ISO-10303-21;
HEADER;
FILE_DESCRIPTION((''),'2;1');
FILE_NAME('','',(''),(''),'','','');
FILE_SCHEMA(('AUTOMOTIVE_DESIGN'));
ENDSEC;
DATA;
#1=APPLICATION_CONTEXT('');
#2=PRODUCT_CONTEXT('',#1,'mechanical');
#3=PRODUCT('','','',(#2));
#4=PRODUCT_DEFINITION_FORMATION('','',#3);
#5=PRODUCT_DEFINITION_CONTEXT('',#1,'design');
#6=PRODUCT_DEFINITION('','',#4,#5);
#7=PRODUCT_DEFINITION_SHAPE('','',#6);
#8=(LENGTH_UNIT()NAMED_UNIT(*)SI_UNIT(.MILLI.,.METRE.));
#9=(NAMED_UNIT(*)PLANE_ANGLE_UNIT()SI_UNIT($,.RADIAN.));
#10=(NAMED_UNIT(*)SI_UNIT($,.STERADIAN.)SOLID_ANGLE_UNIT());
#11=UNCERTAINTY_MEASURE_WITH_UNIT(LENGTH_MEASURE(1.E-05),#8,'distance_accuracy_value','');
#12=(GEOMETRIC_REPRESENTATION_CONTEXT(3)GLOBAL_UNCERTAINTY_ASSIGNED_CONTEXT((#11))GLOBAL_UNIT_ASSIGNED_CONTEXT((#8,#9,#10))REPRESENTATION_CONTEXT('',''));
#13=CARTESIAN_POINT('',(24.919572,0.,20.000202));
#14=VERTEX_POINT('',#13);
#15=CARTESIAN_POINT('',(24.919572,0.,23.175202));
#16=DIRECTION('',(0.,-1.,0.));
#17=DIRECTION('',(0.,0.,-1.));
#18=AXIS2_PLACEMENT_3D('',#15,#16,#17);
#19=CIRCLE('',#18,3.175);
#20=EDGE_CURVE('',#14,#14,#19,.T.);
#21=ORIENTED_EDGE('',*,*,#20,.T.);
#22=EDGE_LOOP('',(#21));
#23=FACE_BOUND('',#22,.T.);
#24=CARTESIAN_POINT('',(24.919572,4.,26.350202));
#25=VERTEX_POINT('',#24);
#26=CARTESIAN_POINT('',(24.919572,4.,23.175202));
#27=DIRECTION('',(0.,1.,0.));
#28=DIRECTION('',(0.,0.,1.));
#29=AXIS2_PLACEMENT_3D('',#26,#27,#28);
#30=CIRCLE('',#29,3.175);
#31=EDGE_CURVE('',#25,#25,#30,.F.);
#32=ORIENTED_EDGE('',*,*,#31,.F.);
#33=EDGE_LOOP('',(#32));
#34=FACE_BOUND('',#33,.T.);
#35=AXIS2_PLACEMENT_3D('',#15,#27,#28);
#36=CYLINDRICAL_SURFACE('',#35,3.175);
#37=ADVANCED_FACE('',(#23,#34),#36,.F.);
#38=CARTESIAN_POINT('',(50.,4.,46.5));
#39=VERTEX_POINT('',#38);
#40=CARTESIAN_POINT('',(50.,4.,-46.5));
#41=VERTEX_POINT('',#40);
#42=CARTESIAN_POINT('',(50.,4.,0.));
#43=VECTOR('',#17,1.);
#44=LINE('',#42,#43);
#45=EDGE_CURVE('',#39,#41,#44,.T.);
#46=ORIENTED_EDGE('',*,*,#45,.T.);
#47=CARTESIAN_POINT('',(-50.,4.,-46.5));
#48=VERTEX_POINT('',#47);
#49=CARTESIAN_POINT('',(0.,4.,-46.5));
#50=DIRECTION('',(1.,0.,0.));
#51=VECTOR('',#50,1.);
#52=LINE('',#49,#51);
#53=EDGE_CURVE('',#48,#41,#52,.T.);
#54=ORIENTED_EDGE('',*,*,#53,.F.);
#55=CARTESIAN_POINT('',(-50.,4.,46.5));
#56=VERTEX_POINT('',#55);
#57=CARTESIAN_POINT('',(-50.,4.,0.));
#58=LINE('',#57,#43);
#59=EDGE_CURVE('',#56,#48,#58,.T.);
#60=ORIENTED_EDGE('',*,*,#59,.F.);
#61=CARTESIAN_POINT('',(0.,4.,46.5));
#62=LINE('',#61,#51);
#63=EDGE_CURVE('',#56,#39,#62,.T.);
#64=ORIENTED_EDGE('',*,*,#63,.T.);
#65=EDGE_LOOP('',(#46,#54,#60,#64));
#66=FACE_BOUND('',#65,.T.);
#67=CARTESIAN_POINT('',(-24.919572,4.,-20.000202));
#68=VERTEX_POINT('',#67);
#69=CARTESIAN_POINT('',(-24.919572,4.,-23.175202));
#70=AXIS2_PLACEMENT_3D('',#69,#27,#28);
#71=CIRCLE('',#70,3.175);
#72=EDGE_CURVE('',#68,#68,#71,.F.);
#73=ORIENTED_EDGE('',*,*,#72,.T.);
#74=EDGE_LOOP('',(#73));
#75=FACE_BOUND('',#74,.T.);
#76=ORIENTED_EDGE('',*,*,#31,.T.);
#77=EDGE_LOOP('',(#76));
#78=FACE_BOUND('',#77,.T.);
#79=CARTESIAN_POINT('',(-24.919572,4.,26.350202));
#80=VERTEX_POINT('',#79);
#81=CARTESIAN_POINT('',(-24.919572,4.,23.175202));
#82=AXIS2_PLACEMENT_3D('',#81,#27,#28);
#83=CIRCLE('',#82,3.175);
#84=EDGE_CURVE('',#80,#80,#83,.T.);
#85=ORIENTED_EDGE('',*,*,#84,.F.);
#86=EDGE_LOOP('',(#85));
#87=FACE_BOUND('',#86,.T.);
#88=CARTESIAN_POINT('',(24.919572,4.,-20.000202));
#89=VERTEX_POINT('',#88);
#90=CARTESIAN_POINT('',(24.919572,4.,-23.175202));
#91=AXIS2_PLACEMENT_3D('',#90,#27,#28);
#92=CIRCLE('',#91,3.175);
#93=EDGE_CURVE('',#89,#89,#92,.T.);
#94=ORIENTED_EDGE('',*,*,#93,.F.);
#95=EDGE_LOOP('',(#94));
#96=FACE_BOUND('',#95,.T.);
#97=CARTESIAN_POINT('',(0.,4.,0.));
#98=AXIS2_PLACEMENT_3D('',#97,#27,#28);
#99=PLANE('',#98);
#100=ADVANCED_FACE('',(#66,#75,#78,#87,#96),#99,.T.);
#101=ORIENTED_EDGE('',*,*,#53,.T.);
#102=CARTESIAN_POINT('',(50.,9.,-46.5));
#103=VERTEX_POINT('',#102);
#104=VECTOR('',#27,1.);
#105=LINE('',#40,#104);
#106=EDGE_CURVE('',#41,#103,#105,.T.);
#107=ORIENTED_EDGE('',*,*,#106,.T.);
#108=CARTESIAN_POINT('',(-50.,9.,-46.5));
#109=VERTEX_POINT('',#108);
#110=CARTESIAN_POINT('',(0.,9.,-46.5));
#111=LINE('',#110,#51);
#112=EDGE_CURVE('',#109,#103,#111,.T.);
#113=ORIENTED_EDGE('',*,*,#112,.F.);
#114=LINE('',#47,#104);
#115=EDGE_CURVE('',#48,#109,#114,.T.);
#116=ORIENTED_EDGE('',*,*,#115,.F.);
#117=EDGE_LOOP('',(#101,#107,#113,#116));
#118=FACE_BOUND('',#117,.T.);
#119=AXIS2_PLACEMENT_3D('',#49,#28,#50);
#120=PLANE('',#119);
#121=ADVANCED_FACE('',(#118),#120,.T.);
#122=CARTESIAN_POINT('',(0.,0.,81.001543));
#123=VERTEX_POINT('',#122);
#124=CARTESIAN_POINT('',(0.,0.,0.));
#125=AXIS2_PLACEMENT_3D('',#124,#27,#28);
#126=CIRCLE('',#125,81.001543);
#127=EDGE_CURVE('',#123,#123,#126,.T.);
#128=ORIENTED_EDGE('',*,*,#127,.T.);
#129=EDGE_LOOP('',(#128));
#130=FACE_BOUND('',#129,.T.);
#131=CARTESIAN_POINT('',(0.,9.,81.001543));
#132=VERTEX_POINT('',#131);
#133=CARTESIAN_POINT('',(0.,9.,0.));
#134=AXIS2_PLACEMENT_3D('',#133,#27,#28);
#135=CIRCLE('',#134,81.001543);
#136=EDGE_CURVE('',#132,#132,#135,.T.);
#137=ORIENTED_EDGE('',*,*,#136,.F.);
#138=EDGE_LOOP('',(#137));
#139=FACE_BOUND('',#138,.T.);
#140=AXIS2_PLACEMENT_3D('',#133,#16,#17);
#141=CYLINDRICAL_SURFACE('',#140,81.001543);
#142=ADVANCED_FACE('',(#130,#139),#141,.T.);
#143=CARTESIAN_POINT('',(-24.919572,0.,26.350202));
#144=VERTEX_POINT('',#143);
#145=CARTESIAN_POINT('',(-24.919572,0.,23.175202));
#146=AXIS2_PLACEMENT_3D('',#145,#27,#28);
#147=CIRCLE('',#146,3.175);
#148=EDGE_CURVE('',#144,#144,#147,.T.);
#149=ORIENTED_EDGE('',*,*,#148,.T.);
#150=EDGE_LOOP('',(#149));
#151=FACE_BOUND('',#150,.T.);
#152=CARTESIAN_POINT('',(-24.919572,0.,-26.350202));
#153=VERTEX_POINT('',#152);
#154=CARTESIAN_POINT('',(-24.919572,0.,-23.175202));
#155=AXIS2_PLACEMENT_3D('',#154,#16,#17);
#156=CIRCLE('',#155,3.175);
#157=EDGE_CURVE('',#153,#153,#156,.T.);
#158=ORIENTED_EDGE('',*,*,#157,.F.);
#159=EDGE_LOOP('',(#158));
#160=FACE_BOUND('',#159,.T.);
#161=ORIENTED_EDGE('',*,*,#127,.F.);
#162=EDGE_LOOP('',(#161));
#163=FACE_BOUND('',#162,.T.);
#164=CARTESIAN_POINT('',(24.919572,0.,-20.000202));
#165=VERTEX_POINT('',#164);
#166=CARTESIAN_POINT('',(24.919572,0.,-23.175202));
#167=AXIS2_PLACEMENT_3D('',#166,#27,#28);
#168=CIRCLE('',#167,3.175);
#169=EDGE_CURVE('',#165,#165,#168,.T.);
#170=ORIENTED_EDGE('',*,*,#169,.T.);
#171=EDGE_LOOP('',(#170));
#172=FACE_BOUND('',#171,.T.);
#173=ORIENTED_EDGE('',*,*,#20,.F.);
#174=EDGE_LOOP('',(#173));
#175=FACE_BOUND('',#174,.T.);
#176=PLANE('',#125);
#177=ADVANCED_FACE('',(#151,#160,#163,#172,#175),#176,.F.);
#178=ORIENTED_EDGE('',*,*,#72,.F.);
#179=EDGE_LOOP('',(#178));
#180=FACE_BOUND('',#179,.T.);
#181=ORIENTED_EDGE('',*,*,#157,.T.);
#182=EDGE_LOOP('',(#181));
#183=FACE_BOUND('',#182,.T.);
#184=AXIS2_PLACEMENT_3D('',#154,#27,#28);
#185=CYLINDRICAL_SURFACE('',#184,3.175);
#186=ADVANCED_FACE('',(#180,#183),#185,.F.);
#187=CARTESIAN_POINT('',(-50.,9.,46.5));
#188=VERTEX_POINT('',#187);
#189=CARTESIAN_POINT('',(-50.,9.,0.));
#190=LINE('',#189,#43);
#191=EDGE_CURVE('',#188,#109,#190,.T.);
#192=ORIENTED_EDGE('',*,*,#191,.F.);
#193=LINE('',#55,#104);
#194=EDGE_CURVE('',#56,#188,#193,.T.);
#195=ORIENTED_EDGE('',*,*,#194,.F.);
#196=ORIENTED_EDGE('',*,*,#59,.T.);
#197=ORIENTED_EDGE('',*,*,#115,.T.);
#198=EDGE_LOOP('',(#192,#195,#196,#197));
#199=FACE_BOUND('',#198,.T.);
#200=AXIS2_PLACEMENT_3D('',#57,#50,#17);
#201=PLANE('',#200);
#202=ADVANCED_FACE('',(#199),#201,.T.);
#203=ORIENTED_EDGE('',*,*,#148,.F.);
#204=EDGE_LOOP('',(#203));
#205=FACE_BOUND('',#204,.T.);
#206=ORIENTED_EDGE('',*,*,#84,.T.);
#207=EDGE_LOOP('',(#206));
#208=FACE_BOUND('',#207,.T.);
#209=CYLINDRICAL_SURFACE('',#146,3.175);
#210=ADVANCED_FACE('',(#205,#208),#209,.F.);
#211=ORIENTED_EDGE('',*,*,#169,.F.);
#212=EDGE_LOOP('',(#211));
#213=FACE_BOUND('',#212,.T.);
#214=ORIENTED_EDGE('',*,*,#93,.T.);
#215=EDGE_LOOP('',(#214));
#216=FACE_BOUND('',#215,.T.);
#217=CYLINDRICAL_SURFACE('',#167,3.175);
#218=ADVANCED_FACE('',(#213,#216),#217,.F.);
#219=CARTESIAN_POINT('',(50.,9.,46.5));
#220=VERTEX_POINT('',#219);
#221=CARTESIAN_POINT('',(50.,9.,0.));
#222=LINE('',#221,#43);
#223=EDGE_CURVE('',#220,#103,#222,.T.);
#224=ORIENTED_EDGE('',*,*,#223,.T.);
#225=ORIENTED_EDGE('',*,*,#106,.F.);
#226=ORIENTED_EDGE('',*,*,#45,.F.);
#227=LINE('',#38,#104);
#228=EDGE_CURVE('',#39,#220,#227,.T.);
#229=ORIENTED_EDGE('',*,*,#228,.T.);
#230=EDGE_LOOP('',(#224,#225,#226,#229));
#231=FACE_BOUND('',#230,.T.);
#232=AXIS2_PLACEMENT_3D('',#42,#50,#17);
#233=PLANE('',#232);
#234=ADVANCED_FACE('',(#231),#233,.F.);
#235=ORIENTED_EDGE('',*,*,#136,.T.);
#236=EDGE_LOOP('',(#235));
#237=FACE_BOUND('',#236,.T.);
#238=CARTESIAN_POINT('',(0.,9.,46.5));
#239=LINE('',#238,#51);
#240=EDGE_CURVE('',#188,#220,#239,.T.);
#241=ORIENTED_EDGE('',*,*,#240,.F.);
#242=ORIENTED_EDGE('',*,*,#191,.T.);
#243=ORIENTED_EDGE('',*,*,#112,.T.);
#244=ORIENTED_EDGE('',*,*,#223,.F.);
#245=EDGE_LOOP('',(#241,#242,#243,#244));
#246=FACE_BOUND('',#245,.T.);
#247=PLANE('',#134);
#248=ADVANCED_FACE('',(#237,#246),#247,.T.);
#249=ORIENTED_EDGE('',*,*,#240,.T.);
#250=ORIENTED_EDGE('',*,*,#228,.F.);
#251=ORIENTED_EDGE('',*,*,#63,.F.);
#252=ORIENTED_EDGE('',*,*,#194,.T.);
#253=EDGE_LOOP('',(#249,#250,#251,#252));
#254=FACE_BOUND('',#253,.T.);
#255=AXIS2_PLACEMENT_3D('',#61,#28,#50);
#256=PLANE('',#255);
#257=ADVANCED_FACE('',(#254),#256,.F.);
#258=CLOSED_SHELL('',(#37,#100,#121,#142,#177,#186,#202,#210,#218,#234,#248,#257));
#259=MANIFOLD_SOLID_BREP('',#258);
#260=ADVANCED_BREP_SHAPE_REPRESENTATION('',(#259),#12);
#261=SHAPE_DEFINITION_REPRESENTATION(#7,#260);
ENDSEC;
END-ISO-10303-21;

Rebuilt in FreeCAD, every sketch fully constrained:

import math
import FreeCAD as App
import Part
import Sketcher


def add_polygon(sketch, points):
    """Adds a closed chain of lines whose ends are joined by coincident constraints."""
    first, n = sketch.GeometryCount, len(points)
    for a, b in zip(points, points[1:] + points[:1]):
        sketch.addGeometry(Part.LineSegment(App.Vector(*a, 0), App.Vector(*b, 0)), False)
    for i in range(n):
        sketch.addConstraint(Sketcher.Constraint("Coincident", first + i, 2, first + (i + 1) % n, 1))

doc = App.newDocument("Part")
params = doc.addObject("Spreadsheet::Sheet", "Params")
for row, (alias, value) in enumerate([
    ("pad1_length", "9 mm"),
    ("sketch2_diameter", "6.35 mm"),
    ("sketch2_width", "100 mm"),
    ("sketch2_height", "93 mm"),
    ("pocket1_length", "5 mm"),
    ("sketch3_diameter", "6.35 mm"),
], start=1):
    params.set(f"A{row}", alias)
    params.set(f"B{row}", "=" + value)
    params.setAlias(f"B{row}", alias)

body = doc.addObject("PartDesign::Body", "Body")

# Sketch on XZ plane
sketch1 = body.newObject("Sketcher::SketchObject", "Sketch")
sketch1.AttachmentSupport = (doc.getObject("XZ_Plane"), [""])
sketch1.MapMode = "FlatFace"
sketch1.addGeometry([
    Part.ArcOfCircle(Part.Circle(App.Vector(0, 0, 0), App.Vector(0, 0, 1), 81), math.radians(137), math.radians(223)),  # 0
    Part.ArcOfCircle(Part.Circle(App.Vector(0, 0, 0), App.Vector(0, 0, 1), 81), math.radians(43), math.radians(137)),  # 1
    Part.ArcOfCircle(Part.Circle(App.Vector(0, 0, 0), App.Vector(0, 0, 1), 81), math.radians(0), math.radians(43)),  # 2
    Part.ArcOfCircle(Part.Circle(App.Vector(0, 0, 0), App.Vector(0, 0, 1), 81), math.radians(-43), math.radians(0)),  # 3
    Part.ArcOfCircle(Part.Circle(App.Vector(0, 0, 0), App.Vector(0, 0, 1), 81), math.radians(-137), math.radians(-43)),  # 4
], False)
sketch1.addConstraint([
    Sketcher.Constraint("Tangent", 0, 1, 1, 2),
    Sketcher.Constraint("Tangent", 1, 1, 2, 2),
    Sketcher.Constraint("Tangent", 2, 1, 3, 2),
    Sketcher.Constraint("Tangent", 3, 1, 4, 2),
    Sketcher.Constraint("Tangent", 4, 1, 0, 2),
    Sketcher.Constraint("Coincident", 0, 3, -1, 1),
    Sketcher.Constraint("Coincident", 2, 3, -1, 1),
    Sketcher.Constraint("PointOnObject", 2, 1, -1),
    Sketcher.Constraint("Horizontal", 0, 1, 1, 1),
    Sketcher.Constraint("Horizontal", 3, 1, 4, 1),
    Sketcher.Constraint("Vertical", 1, 1, 3, 1),
    Sketcher.Constraint("DistanceX", 0, 1, -1, 1, 59.0),
    Sketcher.Constraint("DistanceY", -1, 1, 0, 1, 55.5),
])
pad1 = body.newObject("PartDesign::Pad", "Pad")
pad1.Profile = sketch1
pad1.setExpression("Length", "Params.pad1_length")
pad1.Reversed = True

# Sketch on XZ plane
sketch2 = body.newObject("Sketcher::SketchObject", "Sketch001")
sketch2.AttachmentSupport = (doc.getObject("XZ_Plane"), [""])
sketch2.MapMode = "FlatFace"
sketch2.AttachmentOffset = App.Placement(App.Vector(0, 0, -9), App.Rotation())
add_polygon(sketch2, [(-50, -46.5), (-50, 46.5), (50, 46.5), (50, -46.5)])  # lines 0-3
sketch2.addGeometry(Part.Circle(App.Vector(-24.9, 23.2, 0), App.Vector(0, 0, 1), 3.2), False)  # 4
sketch2.addGeometry(Part.Circle(App.Vector(24.9, 23.2, 0), App.Vector(0, 0, 1), 3.2), False)  # 5
sketch2.addGeometry(Part.Circle(App.Vector(-24.9, -23.2, 0), App.Vector(0, 0, 1), 3.2), False)  # 6
sketch2.addGeometry(Part.Circle(App.Vector(24.9, -23.2, 0), App.Vector(0, 0, 1), 3.2), False)  # 7
sketch2.addConstraint([
    Sketcher.Constraint("Vertical", 0),
    Sketcher.Constraint("Horizontal", 1),
    Sketcher.Constraint("Vertical", 2),
    Sketcher.Constraint("Horizontal", 3),
    Sketcher.Constraint("Equal", 4, 5),
    Sketcher.Constraint("Equal", 5, 6),
    Sketcher.Constraint("Equal", 6, 7),
    Sketcher.Constraint("Symmetric", 5, 3, 6, 3, -1, 1),
    Sketcher.Constraint("Symmetric", 4, 3, 7, 3, -1, 1),
    Sketcher.Constraint("Symmetric", 0, 2, 2, 2, -1, 1),
    Sketcher.Constraint("Symmetric", 4, 3, 5, 3, -2),
    Sketcher.Constraint("Diameter", 4, 6.35),
    Sketcher.Constraint("DistanceX", 1, 1, 1, 2, 100.0),
    Sketcher.Constraint("DistanceY", 0, 1, 0, 2, 93.0),
    Sketcher.Constraint("DistanceY", -1, 1, 4, 3, 23.175202),
    Sketcher.Constraint("DistanceX", 4, 3, -1, 1, 24.919572),
])
sketch2.setExpression("Constraints[15]", "Params.sketch2_diameter")
sketch2.setExpression("Constraints[16]", "Params.sketch2_width")
sketch2.setExpression("Constraints[17]", "Params.sketch2_height")
pocket1 = body.newObject("PartDesign::Pocket", "Pocket")
pocket1.Profile = sketch2
pocket1.setExpression("Length", "Params.pocket1_length")
pocket1.Reversed = True

# Sketch on XZ plane
sketch3 = body.newObject("Sketcher::SketchObject", "Sketch002")
sketch3.AttachmentSupport = (doc.getObject("XZ_Plane"), [""])
sketch3.MapMode = "FlatFace"
sketch3.AttachmentOffset = App.Placement(App.Vector(0, 0, -9), App.Rotation())
sketch3.addGeometry([
    Part.Circle(App.Vector(-24.9, 23.2, 0), App.Vector(0, 0, 1), 3.2),
    Part.Circle(App.Vector(24.9, 23.2, 0), App.Vector(0, 0, 1), 3.2),
    Part.Circle(App.Vector(24.9, -23.2, 0), App.Vector(0, 0, 1), 3.2),
    Part.Circle(App.Vector(-24.9, -23.2, 0), App.Vector(0, 0, 1), 3.2),
], False)
sketch3.addConstraint([
    Sketcher.Constraint("Equal", 0, 1),
    Sketcher.Constraint("Equal", 1, 2),
    Sketcher.Constraint("Equal", 2, 3),
    Sketcher.Constraint("Symmetric", 0, 3, 2, 3, -1, 1),
    Sketcher.Constraint("Symmetric", 1, 3, 3, 3, -1, 1),
    Sketcher.Constraint("Symmetric", 0, 3, 1, 3, -2),
    Sketcher.Constraint("Diameter", 0, 6.35),
    Sketcher.Constraint("DistanceY", -1, 1, 0, 3, 23.175202),
    Sketcher.Constraint("DistanceX", 0, 3, -1, 1, 24.919572),
])
sketch3.setExpression("Constraints[6]", "Params.sketch3_diameter")
pocket2 = body.newObject("PartDesign::Pocket", "Pocket001")
pocket2.Profile = sketch3
pocket2.Type = "ThroughAll"
pocket2.Reversed = True

doc.recompute()
